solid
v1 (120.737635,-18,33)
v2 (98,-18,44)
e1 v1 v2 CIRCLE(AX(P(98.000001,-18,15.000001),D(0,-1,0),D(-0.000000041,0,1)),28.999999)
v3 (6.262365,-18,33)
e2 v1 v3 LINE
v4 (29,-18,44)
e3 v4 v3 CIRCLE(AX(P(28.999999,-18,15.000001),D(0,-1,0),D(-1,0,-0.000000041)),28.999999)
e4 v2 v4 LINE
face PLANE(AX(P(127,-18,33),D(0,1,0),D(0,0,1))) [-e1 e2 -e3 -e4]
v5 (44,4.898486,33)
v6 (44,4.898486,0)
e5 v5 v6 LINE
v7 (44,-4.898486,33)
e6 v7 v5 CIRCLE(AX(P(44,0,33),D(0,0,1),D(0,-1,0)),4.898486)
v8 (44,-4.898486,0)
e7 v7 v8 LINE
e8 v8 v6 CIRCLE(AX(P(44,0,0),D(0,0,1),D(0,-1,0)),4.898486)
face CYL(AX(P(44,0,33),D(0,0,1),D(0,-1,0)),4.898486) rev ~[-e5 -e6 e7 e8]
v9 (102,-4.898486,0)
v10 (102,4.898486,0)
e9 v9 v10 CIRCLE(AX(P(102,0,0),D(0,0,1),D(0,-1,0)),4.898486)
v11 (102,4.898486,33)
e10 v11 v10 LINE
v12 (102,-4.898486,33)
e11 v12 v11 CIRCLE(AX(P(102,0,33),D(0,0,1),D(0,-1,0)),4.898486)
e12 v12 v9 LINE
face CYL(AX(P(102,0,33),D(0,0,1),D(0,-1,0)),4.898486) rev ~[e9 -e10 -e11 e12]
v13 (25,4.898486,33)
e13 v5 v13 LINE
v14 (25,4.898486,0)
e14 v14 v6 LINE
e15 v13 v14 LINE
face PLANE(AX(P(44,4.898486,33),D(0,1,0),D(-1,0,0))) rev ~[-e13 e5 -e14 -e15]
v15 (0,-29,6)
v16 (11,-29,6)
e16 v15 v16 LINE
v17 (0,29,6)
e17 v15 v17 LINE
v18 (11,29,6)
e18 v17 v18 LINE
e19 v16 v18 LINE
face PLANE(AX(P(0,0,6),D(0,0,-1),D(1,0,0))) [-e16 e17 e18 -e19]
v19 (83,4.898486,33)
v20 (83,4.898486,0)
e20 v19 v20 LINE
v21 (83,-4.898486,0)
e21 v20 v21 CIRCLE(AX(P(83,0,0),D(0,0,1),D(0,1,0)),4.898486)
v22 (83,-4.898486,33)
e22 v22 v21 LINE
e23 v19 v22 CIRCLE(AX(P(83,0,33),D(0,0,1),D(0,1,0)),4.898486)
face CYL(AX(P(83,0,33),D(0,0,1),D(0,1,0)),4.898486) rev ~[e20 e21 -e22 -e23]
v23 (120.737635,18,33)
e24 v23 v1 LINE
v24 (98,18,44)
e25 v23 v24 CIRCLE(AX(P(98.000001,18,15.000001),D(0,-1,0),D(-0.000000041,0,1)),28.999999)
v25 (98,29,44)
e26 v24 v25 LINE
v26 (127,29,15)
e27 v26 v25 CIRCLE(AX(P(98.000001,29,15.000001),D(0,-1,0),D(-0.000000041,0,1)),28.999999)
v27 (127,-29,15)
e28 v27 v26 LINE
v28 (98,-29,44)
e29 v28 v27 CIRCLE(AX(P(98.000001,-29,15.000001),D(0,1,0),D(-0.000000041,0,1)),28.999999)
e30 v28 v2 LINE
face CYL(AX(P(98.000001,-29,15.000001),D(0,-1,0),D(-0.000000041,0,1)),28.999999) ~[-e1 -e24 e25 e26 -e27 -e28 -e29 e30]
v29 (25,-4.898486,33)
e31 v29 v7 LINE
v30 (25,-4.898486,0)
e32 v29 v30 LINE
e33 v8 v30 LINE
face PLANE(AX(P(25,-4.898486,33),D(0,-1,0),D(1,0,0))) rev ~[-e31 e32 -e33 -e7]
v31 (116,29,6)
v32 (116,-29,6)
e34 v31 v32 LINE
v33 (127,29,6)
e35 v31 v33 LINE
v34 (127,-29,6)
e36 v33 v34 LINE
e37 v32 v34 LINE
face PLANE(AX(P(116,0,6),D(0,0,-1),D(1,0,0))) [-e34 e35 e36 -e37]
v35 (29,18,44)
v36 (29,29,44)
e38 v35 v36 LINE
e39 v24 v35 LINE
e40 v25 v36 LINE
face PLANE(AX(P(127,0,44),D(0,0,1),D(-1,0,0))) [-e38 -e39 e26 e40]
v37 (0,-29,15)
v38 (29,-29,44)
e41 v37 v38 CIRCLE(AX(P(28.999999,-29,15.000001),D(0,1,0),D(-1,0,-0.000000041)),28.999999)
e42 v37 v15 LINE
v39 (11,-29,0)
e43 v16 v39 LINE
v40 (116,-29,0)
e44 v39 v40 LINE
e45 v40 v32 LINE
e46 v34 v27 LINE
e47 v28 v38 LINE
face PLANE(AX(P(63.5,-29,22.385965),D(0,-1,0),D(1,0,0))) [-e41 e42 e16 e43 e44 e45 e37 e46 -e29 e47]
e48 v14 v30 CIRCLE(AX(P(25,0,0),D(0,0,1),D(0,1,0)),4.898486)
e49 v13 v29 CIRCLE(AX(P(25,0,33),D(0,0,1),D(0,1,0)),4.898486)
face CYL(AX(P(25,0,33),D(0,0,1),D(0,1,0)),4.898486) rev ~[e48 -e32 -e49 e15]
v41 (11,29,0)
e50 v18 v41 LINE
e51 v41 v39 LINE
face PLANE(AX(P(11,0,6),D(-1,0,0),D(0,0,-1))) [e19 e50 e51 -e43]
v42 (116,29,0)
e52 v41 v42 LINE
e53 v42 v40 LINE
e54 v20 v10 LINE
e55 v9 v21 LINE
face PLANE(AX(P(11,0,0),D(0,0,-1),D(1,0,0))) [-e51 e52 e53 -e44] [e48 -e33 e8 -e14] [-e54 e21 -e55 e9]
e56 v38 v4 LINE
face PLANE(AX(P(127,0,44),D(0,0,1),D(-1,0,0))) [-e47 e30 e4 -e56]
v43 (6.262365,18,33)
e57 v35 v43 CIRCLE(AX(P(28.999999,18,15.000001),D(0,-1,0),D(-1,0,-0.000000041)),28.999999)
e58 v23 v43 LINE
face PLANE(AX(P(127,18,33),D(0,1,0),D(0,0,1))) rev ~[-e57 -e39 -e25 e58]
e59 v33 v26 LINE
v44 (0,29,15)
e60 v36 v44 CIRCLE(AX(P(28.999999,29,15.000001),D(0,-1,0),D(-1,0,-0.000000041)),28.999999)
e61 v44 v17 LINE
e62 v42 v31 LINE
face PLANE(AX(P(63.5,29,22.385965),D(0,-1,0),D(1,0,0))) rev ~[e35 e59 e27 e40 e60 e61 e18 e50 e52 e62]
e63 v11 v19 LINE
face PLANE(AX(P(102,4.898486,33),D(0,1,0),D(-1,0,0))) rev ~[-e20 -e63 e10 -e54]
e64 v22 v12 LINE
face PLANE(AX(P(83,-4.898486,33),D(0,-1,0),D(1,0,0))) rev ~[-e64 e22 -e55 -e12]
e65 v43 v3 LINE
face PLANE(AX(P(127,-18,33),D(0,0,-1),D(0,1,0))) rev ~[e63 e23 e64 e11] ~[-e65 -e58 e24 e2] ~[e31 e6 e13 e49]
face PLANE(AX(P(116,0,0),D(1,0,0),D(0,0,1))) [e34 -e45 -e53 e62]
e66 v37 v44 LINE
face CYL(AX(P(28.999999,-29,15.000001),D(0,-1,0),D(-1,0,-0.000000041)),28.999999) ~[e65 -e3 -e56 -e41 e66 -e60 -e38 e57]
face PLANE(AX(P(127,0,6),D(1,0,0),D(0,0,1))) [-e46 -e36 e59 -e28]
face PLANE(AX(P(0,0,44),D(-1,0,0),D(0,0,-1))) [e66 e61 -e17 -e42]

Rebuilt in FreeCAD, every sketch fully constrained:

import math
import FreeCAD as App
import Part
import Sketcher
from FreeCAD import Vector

doc = App.newDocument("Part")
params = doc.addObject("Spreadsheet::Sheet", "Params")
for row, (alias, value) in enumerate([
    ("sketch1_width", "105 mm"),
    ("sketch1_width2", "11 mm"),
    ("sketch1_height", "6 mm"),
    ("sketch1_height2", "38 mm"),
    ("pad1_length", "58 mm"),
    ("sketch2_width", "36 mm"),
    ("sketch2_height", "11 mm"),
    ("sketch3_radius", "28.999999 mm"),
    ("sketch4_radius", "28.999999 mm"),
    ("sketch5_width", "19 mm"),
], start=1):
    params.set(f"A{row}", alias)
    params.set(f"B{row}", "=" + value)
    params.setAlias(f"B{row}", alias)

body = doc.addObject("PartDesign::Body", "Body")

# Sketch on XZ plane
sketch1 = doc.addObject("Sketcher::SketchObject", "Sketch")
body.addObject(sketch1)
sketch1.AttachmentSupport = (doc.XZ_Plane, [""])
sketch1.MapMode = "FlatFace"
sketch1.addGeometry([
    Part.LineSegment(Vector(11, 6, 0), Vector(11, 0, 0)),  # 0
    Part.LineSegment(Vector(11, 0, 0), Vector(116, 0, 0)),  # 1
    Part.LineSegment(Vector(116, 0, 0), Vector(116, 6, 0)),  # 2
    Part.LineSegment(Vector(116, 6, 0), Vector(127, 6, 0)),  # 3
    Part.LineSegment(Vector(127, 6, 0), Vector(127, 44, 0)),  # 4
    Part.LineSegment(Vector(127, 44, 0), Vector(0, 44, 0)),  # 5
    Part.LineSegment(Vector(0, 44, 0), Vector(0, 6, 0)),  # 6
    Part.LineSegment(Vector(0, 6, 0), Vector(11, 6, 0)),  # 7
], False)
sketch1.addConstraint([
    Sketcher.Constraint("Coincident", 0, 2, 1, 1),
    Sketcher.Constraint("Coincident", 1, 2, 2, 1),
    Sketcher.Constraint("Coincident", 2, 2, 3, 1),
    Sketcher.Constraint("Coincident", 3, 2, 4, 1),
    Sketcher.Constraint("Coincident", 4, 2, 5, 1),
    Sketcher.Constraint("Coincident", 5, 2, 6, 1),
    Sketcher.Constraint("Coincident", 6, 2, 7, 1),
    Sketcher.Constraint("Coincident", 7, 2, 0, 1),
    Sketcher.Constraint("Vertical", 0),
    Sketcher.Constraint("Horizontal", 1),
    Sketcher.Constraint("Vertical", 2),
    Sketcher.Constraint("Horizontal", 3),
    Sketcher.Constraint("Vertical", 4),
    Sketcher.Constraint("Horizontal", 5),
    Sketcher.Constraint("Vertical", 6),
    Sketcher.Constraint("Horizontal", 7),
    Sketcher.Constraint("PointOnObject", 0, 2, -1),
    Sketcher.Constraint("PointOnObject", 5, 2, -2),
    Sketcher.Constraint("Horizontal", 3, 2, 6, 2),
    Sketcher.Constraint("Equal", 3, 7),
    Sketcher.Constraint("DistanceX", 1, 1, 1, 2, 105.0),
    Sketcher.Constraint("DistanceX", 3, 1, 3, 2, 11.0),
    Sketcher.Constraint("DistanceY", 0, 2, 0, 1, 6.0),
    Sketcher.Constraint("DistanceY", 4, 1, 4, 2, 38.0),
])
sketch1.setExpression("Constraints[20]", "Params.sketch1_width")
sketch1.setExpression("Constraints[21]", "Params.sketch1_width2")
sketch1.setExpression("Constraints[22]", "Params.sketch1_height")
sketch1.setExpression("Constraints[23]", "Params.sketch1_height2")
pad1 = doc.addObject("PartDesign::Pad", "Pad")
body.addObject(pad1)
pad1.Profile = sketch1
pad1.setExpression("Length", "Params.pad1_length")
pad1.Midplane = True

# Sketch on YZ plane
sketch2 = doc.addObject("Sketcher::SketchObject", "Sketch001")
body.addObject(sketch2)
sketch2.AttachmentSupport = (doc.YZ_Plane, [""])
sketch2.MapMode = "FlatFace"
sketch2.AttachmentOffset = App.Placement(Vector(0, 0, 127), App.Rotation())
sketch2.addGeometry([
    Part.LineSegment(Vector(-18, 44, 0), Vector(-18, 33, 0)),
    Part.LineSegment(Vector(-18, 33, 0), Vector(18, 33, 0)),
    Part.LineSegment(Vector(18, 33, 0), Vector(18, 44, 0)),
    Part.LineSegment(Vector(18, 44, 0), Vector(-18, 44, 0)),
], False)
sketch2.addConstraint([
    Sketcher.Constraint("Coincident", 0, 2, 1, 1),
    Sketcher.Constraint("Coincident", 1, 2, 2, 1),
    Sketcher.Constraint("Coincident", 2, 2, 3, 1),
    Sketcher.Constraint("Coincident", 3, 2, 0, 1),
    Sketcher.Constraint("Vertical", 0),
    Sketcher.Constraint("Horizontal", 1),
    Sketcher.Constraint("Vertical", 2),
    Sketcher.Constraint("Horizontal", 3),
    Sketcher.Constraint("DistanceX", 1, 1, 1, 2, 36.0),
    Sketcher.Constraint("DistanceY", 0, 2, 0, 1, 11.0),
    Sketcher.Constraint("DistanceX", 0, 2, -1, 1, 18.0),
    Sketcher.Constraint("DistanceY", -1, 1, 0, 2, 33.0),
])
sketch2.setExpression("Constraints[8]", "Params.sketch2_width")
sketch2.setExpression("Constraints[9]", "Params.sketch2_height")
pocket1 = doc.addObject("PartDesign::Pocket", "Pocket")
body.addObject(pocket1)
pocket1.Profile = sketch2
pocket1.Type = "ThroughAll"

# Sketch on XZ plane
sketch3 = doc.addObject("Sketcher::SketchObject", "Sketch002")
body.addObject(sketch3)
sketch3.AttachmentSupport = (doc.XZ_Plane, [""])
sketch3.MapMode = "FlatFace"
sketch3.AttachmentOffset = App.Placement(Vector(0, 0, 29), App.Rotation())
sketch3.addGeometry([
    Part.ArcOfCircle(Part.Circle(Vector(29, 15, 0), Vector(0, 0, 1), 29), math.radians(90), math.radians(180)),
    Part.LineSegment(Vector(29, 44, 0), Vector(0, 44, 0)),
    Part.LineSegment(Vector(0, 44, 0), Vector(0, 15, 0)),
], False)
sketch3.addConstraint([
    Sketcher.Constraint("Tangent", 0, 1, 1, 1),
    Sketcher.Constraint("Coincident", 1, 2, 2, 1),
    Sketcher.Constraint("Tangent", 2, 2, 0, 2),
    Sketcher.Constraint("Horizontal", 1),
    Sketcher.Constraint("Vertical", 2),
    Sketcher.Constraint("PointOnObject", 1, 2, -2),
    Sketcher.Constraint("Radius", 0, 28.999999),
    Sketcher.Constraint("DistanceY", -1, 1, 0, 3, 15.000001),
])
sketch3.setExpression("Constraints[6]", "Params.sketch3_radius")
pocket2 = doc.addObject("PartDesign::Pocket", "Pocket001")
body.addObject(pocket2)
pocket2.Profile = sketch3
pocket2.Type = "ThroughAll"

# Sketch on XZ plane
sketch4 = doc.addObject("Sketcher::SketchObject", "Sketch003")
body.addObject(sketch4)
sketch4.AttachmentSupport = (doc.XZ_Plane, [""])
sketch4.MapMode = "FlatFace"
sketch4.AttachmentOffset = App.Placement(Vector(0, 0, 29), App.Rotation())
sketch4.addGeometry([
    Part.ArcOfCircle(Part.Circle(Vector(98, 15, 0), Vector(0, 0, 1), 29), math.radians(0), math.radians(90)),
    Part.LineSegment(Vector(127, 15, 0), Vector(127, 44, 0)),
    Part.LineSegment(Vector(127, 44, 0), Vector(98, 44, 0)),
], False)
sketch4.addConstraint([
    Sketcher.Constraint("Tangent", 0, 1, 1, 1),
    Sketcher.Constraint("Coincident", 1, 2, 2, 1),
    Sketcher.Constraint("Tangent", 2, 2, 0, 2),
    Sketcher.Constraint("Vertical", 1),
    Sketcher.Constraint("Horizontal", 2),
    Sketcher.Constraint("Radius", 0, 28.999999),
    Sketcher.Constraint("DistanceX", -1, 1, 0, 3, 98.000001),
    Sketcher.Constraint("DistanceY", -1, 1, 0, 3, 15.000001),
])
sketch4.setExpression("Constraints[5]", "Params.sketch4_radius")
pocket3 = doc.addObject("PartDesign::Pocket", "Pocket002")
body.addObject(pocket3)
pocket3.Profile = sketch4
pocket3.Type = "ThroughAll"

# Sketch on XY plane
sketch5 = doc.addObject("Sketcher::SketchObject", "Sketch004")
body.addObject(sketch5)
sketch5.AttachmentSupport = (doc.XY_Plane, [""])
sketch5.MapMode = "FlatFace"
sketch5.AttachmentOffset = App.Placement(Vector(0, 0, 33), App.Rotation())
sketch5.addGeometry([
    Part.LineSegment(Vector(102, 4.9, 0), Vector(83, 4.9, 0)),  # 0
    Part.ArcOfCircle(Part.Circle(Vector(83, 0, 0), Vector(0, 0, 1), 4.9), math.radians(90), math.radians(270)),  # 1
    Part.LineSegment(Vector(83, -4.9, 0), Vector(102, -4.9, 0)),  # 2
    Part.ArcOfCircle(Part.Circle(Vector(102, 0, 0), Vector(0, 0, 1), 4.9), math.radians(-90), math.radians(90)),  # 3
    Part.LineSegment(Vector(44, 4.9, 0), Vector(25, 4.9, 0)),  # 4
    Part.ArcOfCircle(Part.Circle(Vector(25, 0, 0), Vector(0, 0, 1), 4.9), math.radians(90), math.radians(270)),  # 5
    Part.LineSegment(Vector(25, -4.9, 0), Vector(44, -4.9, 0)),  # 6
    Part.ArcOfCircle(Part.Circle(Vector(44, 0, 0), Vector(0, 0, 1), 4.9), math.radians(-90), math.radians(90)),  # 7
], False)
sketch5.addConstraint([
    Sketcher.Constraint("Tangent", 0, 2, 1, 1),
    Sketcher.Constraint("Tangent", 1, 2, 2, 1),
    Sketcher.Constraint("Tangent", 2, 2, 3, 1),
    Sketcher.Constraint("Tangent", 3, 2, 0, 1),
    Sketcher.Constraint("Tangent", 4, 2, 5, 1),
    Sketcher.Constraint("Tangent", 5, 2, 6, 1),
    Sketcher.Constraint("Tangent", 6, 2, 7, 1),
    Sketcher.Constraint("Tangent", 7, 2, 4, 1),
    Sketcher.Constraint("Horizontal", 0),
    Sketcher.Constraint("Horizontal", 2),
    Sketcher.Constraint("Horizontal", 4),
    Sketcher.Constraint("Horizontal", 6),
    Sketcher.Constraint("Equal", 3, 5),
    Sketcher.Constraint("PointOnObject", 1, 3, -1),
    Sketcher.Constraint("PointOnObject", 5, 3, -1),
    Sketcher.Constraint("Equal", 2, 4),
    Sketcher.Constraint("DistanceX", 0, 2, 0, 1, 19.0),
    Sketcher.Constraint("DistanceX", -1, 1, 1, 3, 83.0),
    Sketcher.Constraint("DistanceX", -1, 1, 5, 3, 25.0),
    Sketcher.Constraint("Radius", 1, 4.898486),
])
sketch5.setExpression("Constraints[16]", "Params.sketch5_width")
pocket4 = doc.addObject("PartDesign::Pocket", "Pocket003")
body.addObject(pocket4)
pocket4.Profile = sketch5
pocket4.Type = "ThroughAll"

doc.recompute()
